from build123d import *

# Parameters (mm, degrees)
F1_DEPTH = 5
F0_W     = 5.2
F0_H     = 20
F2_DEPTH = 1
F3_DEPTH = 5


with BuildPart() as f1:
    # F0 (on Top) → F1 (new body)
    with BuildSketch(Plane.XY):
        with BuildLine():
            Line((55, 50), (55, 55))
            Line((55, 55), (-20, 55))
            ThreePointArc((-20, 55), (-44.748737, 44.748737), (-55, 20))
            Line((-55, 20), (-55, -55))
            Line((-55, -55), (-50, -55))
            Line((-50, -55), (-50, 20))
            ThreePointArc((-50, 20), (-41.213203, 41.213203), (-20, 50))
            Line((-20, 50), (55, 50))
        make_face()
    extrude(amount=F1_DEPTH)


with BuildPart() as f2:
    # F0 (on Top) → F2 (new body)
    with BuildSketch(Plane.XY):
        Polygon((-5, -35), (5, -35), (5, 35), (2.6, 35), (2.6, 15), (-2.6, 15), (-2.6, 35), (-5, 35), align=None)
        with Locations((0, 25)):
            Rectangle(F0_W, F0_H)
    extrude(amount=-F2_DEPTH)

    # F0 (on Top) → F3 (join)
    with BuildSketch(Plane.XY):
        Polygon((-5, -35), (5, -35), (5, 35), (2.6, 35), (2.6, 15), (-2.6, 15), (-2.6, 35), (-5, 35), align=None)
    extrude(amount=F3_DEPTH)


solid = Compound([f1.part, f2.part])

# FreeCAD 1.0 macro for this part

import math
import FreeCAD as App
import Part
import Sketcher
from FreeCAD import Vector
Q = App.Units.Quantity


def add_polygon(sketch, points):
    """Adds a closed chain of lines whose ends are joined by coincident constraints."""
    first, n = sketch.GeometryCount, len(points)
    for a, b in zip(points, points[1:] + points[:1]):
        sketch.addGeometry(Part.LineSegment(App.Vector(*a, 0), App.Vector(*b, 0)), False)
    for i in range(n):
        sketch.addConstraint(Sketcher.Constraint("Coincident", first + i, 2, first + (i + 1) % n, 1))

doc = App.newDocument("Part")
body = doc.addObject("PartDesign::Body", "Body")

sketch1 = body.newObject("Sketcher::SketchObject", "Sketch")
sketch1.AttachmentSupport = (doc.getObject("XY_Plane"), [""])
sketch1.MapMode = "FlatFace"
sketch1.addGeometry([
    Part.LineSegment(Vector(55, 50, 0), Vector(55, 55, 0)),
    Part.LineSegment(Vector(55, 55, 0), Vector(-20, 55, 0)),
    Part.ArcOfCircle(Part.Circle(Vector(-20, 20, 0), Vector(0, 0, 1), 35), math.radians(90), math.radians(180)),
    Part.LineSegment(Vector(-55, 20, 0), Vector(-55, -55, 0)),
    Part.LineSegment(Vector(-55, -55, 0), Vector(-50, -55, 0)),
    Part.LineSegment(Vector(-50, -55, 0), Vector(-50, 20, 0)),
    Part.ArcOfCircle(Part.Circle(Vector(-20, 20, 0), Vector(0, 0, 1), 30), math.radians(90), math.radians(180)),
    Part.LineSegment(Vector(-20, 50, 0), Vector(55, 50, 0)),
], False)
sketch1.addConstraint([
    Sketcher.Constraint("Coincident", 0, 2, 1, 1),
    Sketcher.Constraint("Tangent", 1, 2, 2, 1),
    Sketcher.Constraint("Tangent", 2, 2, 3, 1),
    Sketcher.Constraint("Coincident", 3, 2, 4, 1),
    Sketcher.Constraint("Coincident", 4, 2, 5, 1),
    Sketcher.Constraint("Tangent", 5, 2, 6, 2),
    Sketcher.Constraint("Tangent", 6, 1, 7, 1),
    Sketcher.Constraint("Coincident", 7, 2, 0, 1),
    Sketcher.Constraint("Vertical", 0),
    Sketcher.Constraint("Horizontal", 1),
    Sketcher.Constraint("Vertical", 3),
    Sketcher.Constraint("Horizontal", 4),
    Sketcher.Constraint("Vertical", 5),
    Sketcher.Constraint("Horizontal", 7),
    Sketcher.Constraint("Coincident", 6, 3, 2, 3),
    Sketcher.Constraint("Symmetric", 0, 2, 3, 2, -1, 1),
    Sketcher.Constraint("Equal", 7, 3),
    Sketcher.Constraint("Radius", 2, Q("35.000001 mm")),
    Sketcher.Constraint("Radius", 6, Q("30.000001 mm")),
    Sketcher.Constraint("DistanceX", 1, 2, 1, 1, Q("75 mm")),
])
pad1 = body.newObject("PartDesign::Pad", "Pad")
pad1.Profile = sketch1
pad1.Length = 5
body2 = doc.addObject("PartDesign::Body", "Body001")

sketch2 = body2.newObject("Sketcher::SketchObject", "Sketch001")
sketch2.AttachmentSupport = (doc.getObject("XY_Plane001"), [""])
sketch2.MapMode = "FlatFace"
add_polygon(sketch2, [(-5, -35), (5, -35), (5, 35), (-5, 35)])
sketch2.addConstraint([
    Sketcher.Constraint("Horizontal", 0),
    Sketcher.Constraint("Vertical", 1),
    Sketcher.Constraint("Horizontal", 2),
    Sketcher.Constraint("Vertical", 3),
    Sketcher.Constraint("Symmetric", 0, 2, 2, 2, -1, 1),
    Sketcher.Constraint("DistanceX", 0, 1, 0, 2, Q("10 mm")),
    Sketcher.Constraint("DistanceY", 1, 1, 1, 2, Q("70 mm")),
])
pad2 = body2.newObject("PartDesign::Pad", "Pad001")
pad2.Profile = sketch2
pad2.Length = 1
pad2.Reversed = True

sketch3 = body2.newObject("Sketcher::SketchObject", "Sketch002")
sketch3.AttachmentSupport = (doc.getObject("XY_Plane001"), [""])
sketch3.MapMode = "FlatFace"
add_polygon(sketch3, [(-5, -35), (5, -35), (5, 35), (2.6, 35), (2.6, 15), (-2.6, 15), (-2.6, 35), (-5, 35)])
sketch3.addConstraint([
    Sketcher.Constraint("Horizontal", 0),
    Sketcher.Constraint("Vertical", 1),
    Sketcher.Constraint("Horizontal", 2),
    Sketcher.Constraint("Vertical", 3),
    Sketcher.Constraint("Horizontal", 4),
    Sketcher.Constraint("Vertical", 5),
    Sketcher.Constraint("Horizontal", 6),
    Sketcher.Constraint("Vertical", 7),
    Sketcher.Constraint("Symmetric", 0, 2, 6, 2, -1, 1),
    Sketcher.Constraint("Symmetric", 2, 2, 5, 2, -2),
    Sketcher.Constraint("DistanceX", 0, 1, 0, 2, Q("10 mm")),
    Sketcher.Constraint("DistanceY", 1, 1, 1, 2, Q("70 mm")),
    Sketcher.Constraint("DistanceY", 3, 2, 3, 1, Q("20 mm")),
    Sketcher.Constraint("DistanceX", 2, 2, 2, 1, Q("2.4 mm")),
])
pad3 = body2.newObject("PartDesign::Pad", "Pad002")
pad3.Profile = sketch3
pad3.Length = 5

doc.recompute()
